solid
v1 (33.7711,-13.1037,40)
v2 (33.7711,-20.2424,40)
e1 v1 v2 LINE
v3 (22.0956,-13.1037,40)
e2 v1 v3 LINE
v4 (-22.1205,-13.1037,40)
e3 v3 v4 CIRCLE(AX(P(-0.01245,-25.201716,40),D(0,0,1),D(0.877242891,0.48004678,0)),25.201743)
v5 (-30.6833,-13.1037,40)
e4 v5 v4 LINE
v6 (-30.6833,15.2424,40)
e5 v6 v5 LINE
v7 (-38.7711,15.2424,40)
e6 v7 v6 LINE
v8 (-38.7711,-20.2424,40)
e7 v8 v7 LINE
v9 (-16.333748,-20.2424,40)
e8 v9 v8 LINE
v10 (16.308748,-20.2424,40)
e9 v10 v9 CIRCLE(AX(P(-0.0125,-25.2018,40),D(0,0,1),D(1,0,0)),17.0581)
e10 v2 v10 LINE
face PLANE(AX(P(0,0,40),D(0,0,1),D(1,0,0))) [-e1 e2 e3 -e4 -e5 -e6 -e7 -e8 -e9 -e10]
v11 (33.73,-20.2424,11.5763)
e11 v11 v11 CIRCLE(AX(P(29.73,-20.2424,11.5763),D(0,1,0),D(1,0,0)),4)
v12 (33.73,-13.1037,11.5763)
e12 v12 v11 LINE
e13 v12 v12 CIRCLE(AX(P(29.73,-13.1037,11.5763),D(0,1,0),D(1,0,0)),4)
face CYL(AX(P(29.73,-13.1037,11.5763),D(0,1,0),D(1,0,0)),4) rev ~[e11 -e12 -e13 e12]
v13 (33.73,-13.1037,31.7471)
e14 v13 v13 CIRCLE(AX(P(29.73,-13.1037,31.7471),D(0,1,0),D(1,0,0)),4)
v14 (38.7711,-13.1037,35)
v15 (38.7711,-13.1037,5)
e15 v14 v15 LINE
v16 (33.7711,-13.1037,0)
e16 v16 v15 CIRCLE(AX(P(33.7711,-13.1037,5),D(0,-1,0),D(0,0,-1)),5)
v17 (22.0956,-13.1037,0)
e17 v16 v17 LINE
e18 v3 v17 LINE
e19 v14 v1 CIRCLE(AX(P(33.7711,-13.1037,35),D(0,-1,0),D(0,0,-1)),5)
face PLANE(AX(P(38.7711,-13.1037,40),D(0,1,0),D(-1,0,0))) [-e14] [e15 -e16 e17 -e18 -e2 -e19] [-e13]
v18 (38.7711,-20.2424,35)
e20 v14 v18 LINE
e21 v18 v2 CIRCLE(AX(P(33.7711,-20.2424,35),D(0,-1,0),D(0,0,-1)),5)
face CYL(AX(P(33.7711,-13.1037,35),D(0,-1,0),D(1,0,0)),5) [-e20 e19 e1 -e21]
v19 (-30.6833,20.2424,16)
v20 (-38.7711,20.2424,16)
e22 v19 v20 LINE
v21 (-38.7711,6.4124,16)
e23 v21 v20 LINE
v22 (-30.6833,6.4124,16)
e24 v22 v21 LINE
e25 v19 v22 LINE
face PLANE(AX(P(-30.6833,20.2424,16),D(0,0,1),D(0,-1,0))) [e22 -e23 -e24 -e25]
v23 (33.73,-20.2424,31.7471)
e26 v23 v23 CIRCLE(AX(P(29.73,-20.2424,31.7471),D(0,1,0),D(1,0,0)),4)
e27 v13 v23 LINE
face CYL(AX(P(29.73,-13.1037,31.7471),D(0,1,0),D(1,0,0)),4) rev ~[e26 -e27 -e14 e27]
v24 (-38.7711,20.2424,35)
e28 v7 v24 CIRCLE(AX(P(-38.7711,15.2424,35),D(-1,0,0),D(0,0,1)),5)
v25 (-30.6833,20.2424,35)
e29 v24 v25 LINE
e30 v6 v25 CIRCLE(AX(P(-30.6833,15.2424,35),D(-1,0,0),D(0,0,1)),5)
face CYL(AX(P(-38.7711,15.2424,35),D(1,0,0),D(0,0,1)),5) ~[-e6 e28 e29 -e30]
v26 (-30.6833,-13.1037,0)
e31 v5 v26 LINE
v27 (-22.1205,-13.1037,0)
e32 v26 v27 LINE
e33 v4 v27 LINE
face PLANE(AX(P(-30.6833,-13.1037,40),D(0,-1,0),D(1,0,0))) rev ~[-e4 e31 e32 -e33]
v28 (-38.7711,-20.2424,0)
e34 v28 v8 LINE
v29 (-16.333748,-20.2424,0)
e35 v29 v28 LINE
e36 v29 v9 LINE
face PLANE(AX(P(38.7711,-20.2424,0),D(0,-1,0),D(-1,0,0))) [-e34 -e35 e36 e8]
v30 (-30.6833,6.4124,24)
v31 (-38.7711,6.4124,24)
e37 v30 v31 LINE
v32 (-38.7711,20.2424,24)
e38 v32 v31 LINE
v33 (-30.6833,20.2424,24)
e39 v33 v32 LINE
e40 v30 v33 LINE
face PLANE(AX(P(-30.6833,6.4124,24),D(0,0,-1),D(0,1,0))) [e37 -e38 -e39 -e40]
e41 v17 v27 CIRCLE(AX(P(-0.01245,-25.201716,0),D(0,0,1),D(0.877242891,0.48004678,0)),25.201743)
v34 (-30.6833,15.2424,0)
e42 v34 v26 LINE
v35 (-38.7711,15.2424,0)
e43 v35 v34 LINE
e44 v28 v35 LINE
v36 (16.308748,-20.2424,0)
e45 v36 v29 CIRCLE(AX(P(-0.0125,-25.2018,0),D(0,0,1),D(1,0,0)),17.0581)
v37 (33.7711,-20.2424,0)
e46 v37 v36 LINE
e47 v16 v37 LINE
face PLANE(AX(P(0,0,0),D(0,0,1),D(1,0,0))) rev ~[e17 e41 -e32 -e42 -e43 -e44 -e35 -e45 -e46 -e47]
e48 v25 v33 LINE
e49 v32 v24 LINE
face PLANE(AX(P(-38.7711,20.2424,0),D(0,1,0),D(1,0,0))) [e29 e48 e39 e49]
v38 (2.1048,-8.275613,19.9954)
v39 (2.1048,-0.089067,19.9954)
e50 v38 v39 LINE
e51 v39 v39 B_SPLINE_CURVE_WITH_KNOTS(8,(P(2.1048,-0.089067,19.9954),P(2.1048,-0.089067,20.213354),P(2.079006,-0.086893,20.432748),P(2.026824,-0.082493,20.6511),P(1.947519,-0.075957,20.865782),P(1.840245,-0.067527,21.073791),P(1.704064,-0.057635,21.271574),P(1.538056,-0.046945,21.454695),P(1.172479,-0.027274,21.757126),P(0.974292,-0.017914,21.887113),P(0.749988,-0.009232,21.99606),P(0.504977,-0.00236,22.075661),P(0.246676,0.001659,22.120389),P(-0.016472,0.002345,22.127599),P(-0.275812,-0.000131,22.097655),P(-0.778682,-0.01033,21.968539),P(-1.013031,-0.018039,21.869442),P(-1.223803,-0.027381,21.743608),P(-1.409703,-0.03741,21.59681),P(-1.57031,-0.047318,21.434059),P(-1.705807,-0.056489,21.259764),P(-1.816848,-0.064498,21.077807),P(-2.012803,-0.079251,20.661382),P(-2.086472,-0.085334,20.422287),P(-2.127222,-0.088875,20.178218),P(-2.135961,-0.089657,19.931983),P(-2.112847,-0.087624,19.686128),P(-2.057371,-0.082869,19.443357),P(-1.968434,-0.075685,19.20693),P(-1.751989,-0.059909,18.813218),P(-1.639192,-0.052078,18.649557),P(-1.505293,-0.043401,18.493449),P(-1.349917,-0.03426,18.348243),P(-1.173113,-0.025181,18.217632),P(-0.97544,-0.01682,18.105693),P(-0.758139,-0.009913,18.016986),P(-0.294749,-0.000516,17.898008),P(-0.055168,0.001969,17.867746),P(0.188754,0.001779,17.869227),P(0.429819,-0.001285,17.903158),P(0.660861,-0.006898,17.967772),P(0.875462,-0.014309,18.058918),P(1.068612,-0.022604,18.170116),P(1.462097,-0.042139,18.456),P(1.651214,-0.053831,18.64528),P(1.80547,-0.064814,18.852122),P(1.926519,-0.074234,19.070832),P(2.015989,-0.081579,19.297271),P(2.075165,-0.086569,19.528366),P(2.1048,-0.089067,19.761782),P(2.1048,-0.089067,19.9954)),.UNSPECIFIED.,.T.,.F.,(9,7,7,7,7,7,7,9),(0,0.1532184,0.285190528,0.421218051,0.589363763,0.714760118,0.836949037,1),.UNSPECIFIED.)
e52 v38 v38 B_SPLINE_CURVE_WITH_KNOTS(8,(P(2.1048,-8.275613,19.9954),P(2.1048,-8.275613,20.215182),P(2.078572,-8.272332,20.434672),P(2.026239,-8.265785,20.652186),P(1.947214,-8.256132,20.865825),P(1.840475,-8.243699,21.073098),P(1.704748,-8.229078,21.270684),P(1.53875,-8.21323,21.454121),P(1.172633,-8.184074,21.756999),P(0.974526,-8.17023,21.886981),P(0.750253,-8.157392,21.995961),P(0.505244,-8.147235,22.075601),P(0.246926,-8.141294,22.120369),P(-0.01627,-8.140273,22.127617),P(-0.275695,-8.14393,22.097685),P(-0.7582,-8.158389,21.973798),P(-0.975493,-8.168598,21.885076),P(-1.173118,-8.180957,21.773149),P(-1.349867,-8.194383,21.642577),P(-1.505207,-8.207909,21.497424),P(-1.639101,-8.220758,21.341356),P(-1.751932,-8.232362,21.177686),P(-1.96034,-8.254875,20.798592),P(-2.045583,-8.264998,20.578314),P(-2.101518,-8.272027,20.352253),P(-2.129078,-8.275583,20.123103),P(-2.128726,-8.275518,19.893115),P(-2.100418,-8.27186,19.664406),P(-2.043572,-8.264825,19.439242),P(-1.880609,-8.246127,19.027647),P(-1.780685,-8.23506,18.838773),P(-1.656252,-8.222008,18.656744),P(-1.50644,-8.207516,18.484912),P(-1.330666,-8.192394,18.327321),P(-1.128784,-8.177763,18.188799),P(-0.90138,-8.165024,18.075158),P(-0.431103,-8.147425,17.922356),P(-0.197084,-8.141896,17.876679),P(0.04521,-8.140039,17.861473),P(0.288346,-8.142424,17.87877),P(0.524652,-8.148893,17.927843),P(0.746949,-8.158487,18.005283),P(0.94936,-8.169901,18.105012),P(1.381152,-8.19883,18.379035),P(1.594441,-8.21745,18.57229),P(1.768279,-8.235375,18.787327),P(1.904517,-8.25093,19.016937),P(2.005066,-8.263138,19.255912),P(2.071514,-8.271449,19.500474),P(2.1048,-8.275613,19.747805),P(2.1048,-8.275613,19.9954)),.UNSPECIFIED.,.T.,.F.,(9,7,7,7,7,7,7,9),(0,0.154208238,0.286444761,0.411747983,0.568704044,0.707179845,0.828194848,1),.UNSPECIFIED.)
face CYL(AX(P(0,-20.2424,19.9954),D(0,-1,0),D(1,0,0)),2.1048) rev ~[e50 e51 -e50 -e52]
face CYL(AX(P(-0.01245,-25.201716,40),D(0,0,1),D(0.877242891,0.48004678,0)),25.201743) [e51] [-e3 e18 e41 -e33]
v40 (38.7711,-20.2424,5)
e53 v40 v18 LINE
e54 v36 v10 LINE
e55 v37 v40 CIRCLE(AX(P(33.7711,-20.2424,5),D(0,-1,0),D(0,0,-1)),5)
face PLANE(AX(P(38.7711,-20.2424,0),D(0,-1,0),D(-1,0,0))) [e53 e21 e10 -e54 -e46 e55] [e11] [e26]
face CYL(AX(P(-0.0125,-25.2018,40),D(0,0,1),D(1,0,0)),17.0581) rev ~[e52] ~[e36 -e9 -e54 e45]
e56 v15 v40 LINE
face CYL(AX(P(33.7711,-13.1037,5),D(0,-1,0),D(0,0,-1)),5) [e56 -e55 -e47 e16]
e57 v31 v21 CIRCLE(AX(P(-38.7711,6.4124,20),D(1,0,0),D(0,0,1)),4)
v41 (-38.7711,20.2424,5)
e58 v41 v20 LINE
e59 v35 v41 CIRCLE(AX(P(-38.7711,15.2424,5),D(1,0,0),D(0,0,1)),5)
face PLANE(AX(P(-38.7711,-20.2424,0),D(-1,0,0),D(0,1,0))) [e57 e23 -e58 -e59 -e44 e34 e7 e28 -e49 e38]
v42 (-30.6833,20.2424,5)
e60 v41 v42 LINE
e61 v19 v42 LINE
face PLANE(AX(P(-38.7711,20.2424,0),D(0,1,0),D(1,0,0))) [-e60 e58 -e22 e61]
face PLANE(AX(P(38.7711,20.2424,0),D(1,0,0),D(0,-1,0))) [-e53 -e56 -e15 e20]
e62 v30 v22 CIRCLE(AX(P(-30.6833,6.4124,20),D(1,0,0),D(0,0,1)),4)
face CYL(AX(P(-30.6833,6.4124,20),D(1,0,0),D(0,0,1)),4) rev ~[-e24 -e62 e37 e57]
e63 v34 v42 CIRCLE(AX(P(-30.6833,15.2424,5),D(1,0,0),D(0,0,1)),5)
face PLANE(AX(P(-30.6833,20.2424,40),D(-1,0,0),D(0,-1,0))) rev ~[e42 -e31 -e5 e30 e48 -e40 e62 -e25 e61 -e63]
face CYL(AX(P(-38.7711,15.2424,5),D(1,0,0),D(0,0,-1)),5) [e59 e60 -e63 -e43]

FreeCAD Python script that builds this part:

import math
import FreeCAD as App
import Part
import Sketcher
from FreeCAD import Vector


def edges_at(feature, points):
    """Names of the edges that pass closest to the given points."""
    edges = feature.Shape.Edges
    near = lambda p: min(range(len(edges)), key=lambda i: edges[i].distToShape(Part.Vertex(*p))[0])
    return sorted({f"Edge{near(p) + 1}" for p in points})


def add_polygon(sketch, points):
    """Adds a closed chain of lines whose ends are joined by coincident constraints."""
    first, n = sketch.GeometryCount, len(points)
    for a, b in zip(points, points[1:] + points[:1]):
        sketch.addGeometry(Part.LineSegment(App.Vector(*a, 0), App.Vector(*b, 0)), False)
    for i in range(n):
        sketch.addConstraint(Sketcher.Constraint("Coincident", first + i, 2, first + (i + 1) % n, 1))

doc = App.newDocument("Part")
params = doc.addObject("Spreadsheet::Sheet", "Params")
for row, (alias, value) in enumerate([
    ("pad1_length", "40 mm"),
    ("pocket1_length", "40 mm"),
    ("pocket2_length", "30.75 mm"),
    ("sketch4_diameter", "8 mm"),
    ("pocket3_length", "30.75 mm"),
    ("sketch5_radius", "4 mm"),
    ("sketch5_width", "13.83 mm"),
    ("pocket4_length", "30.75 mm"),
    ("fillet_radius", "5 mm"),
], start=1):
    params.set(f"A{row}", alias)
    params.set(f"B{row}", "=" + value)
    params.setAlias(f"B{row}", alias)

body = doc.addObject("PartDesign::Body", "Body")

# Sketch on XY plane
sketch1 = doc.addObject("Sketcher::SketchObject", "Sketch")
body.addObject(sketch1)
sketch1.AttachmentSupport = (doc.XY_Plane, [""])
sketch1.MapMode = "FlatFace"
add_polygon(sketch1, [(-39, -20), (39, -20), (39, 20), (-39, 20)])  # lines 0-3
sketch1.addConstraint(Sketcher.Constraint("Horizontal", 0))
sketch1.addConstraint(Sketcher.Constraint("Vertical", 1))
sketch1.addConstraint(Sketcher.Constraint("Horizontal", 2))
sketch1.addConstraint(Sketcher.Constraint("Vertical", 3))
sketch1.addConstraint(Sketcher.Constraint("Symmetric", 0, 2, 2, 2, -1, 1))
sketch1.addConstraint(Sketcher.Constraint("DistanceX", 0, 1, 0, 2, 77.5422))
sketch1.addConstraint(Sketcher.Constraint("DistanceY", 1, 1, 1, 2, 40.4848))
pad1 = doc.addObject("PartDesign::Pad", "Pad")
body.addObject(pad1)
pad1.Profile = sketch1
pad1.setExpression("Length", "Params.pad1_length")

# Sketch on XY plane
sketch2 = doc.addObject("Sketcher::SketchObject", "Sketch001")
body.addObject(sketch2)
sketch2.AttachmentSupport = (doc.XY_Plane, [""])
sketch2.MapMode = "FlatFace"
sketch2.AttachmentOffset = App.Placement(Vector(0, 0, 40), App.Rotation())
sketch2.addGeometry(Part.LineSegment(Vector(39, -13, 0), Vector(39, 20, 0)), False)
sketch2.addGeometry(Part.LineSegment(Vector(39, 20, 0), Vector(-31, 20, 0)), False)
sketch2.addGeometry(Part.LineSegment(Vector(-31, 20, 0), Vector(-31, -13, 0)), False)
sketch2.addGeometry(Part.LineSegment(Vector(-31, -13, 0), Vector(-22, -13, 0)), False)
sketch2.addGeometry(Part.ArcOfCircle(Part.Circle(Vector(0, -25, 0), Vector(0, 0, 1), 25), math.radians(29), math.radians(151)), False)
sketch2.addGeometry(Part.LineSegment(Vector(22, -13, 0), Vector(39, -13, 0)), False)
sketch2.addGeometry(Part.Circle(Vector(0, -25, 0), Vector(0, 0, 1), 17), False)
sketch2.addConstraint(Sketcher.Constraint("Coincident", 0, 2, 1, 1))
sketch2.addConstraint(Sketcher.Constraint("Coincident", 1, 2, 2, 1))
sketch2.addConstraint(Sketcher.Constraint("Coincident", 2, 2, 3, 1))
sketch2.addConstraint(Sketcher.Constraint("Coincident", 3, 2, 4, 2))
sketch2.addConstraint(Sketcher.Constraint("Coincident", 4, 1, 5, 1))
sketch2.addConstraint(Sketcher.Constraint("Coincident", 5, 2, 0, 1))
sketch2.addConstraint(Sketcher.Constraint("Vertical", 0))
sketch2.addConstraint(Sketcher.Constraint("Horizontal", 1))
sketch2.addConstraint(Sketcher.Constraint("Vertical", 2))
sketch2.addConstraint(Sketcher.Constraint("Horizontal", 3))
sketch2.addConstraint(Sketcher.Constraint("Horizontal", 5))
sketch2.addConstraint(Sketcher.Constraint("Coincident", 6, 3, 4, 3))
sketch2.addConstraint(Sketcher.Constraint("Horizontal", 3, 2, 4, 1))
sketch2.addConstraint(Sketcher.Constraint("Diameter", 6, 34.1162))
sketch2.addConstraint(Sketcher.Constraint("Radius", 4, 25.2018))
sketch2.addConstraint(Sketcher.Constraint("DistanceY", 0, 1, 0, 2, 33.346))
sketch2.addConstraint(Sketcher.Constraint("DistanceX", 1, 2, 1, 1, 69.4544))
sketch2.addConstraint(Sketcher.Constraint("DistanceX", 3, 1, 3, 2, 8.5628))
sketch2.addConstraint(Sketcher.Constraint("DistanceX", 5, 1, 5, 2, 16.6755))
sketch2.addConstraint(Sketcher.Constraint("DistanceX", -1, 1, 0, 2, 38.771))
sketch2.addConstraint(Sketcher.Constraint("DistanceY", 4, 3, -1, 1, 25.2018))
pocket1 = doc.addObject("PartDesign::Pocket", "Pocket")
body.addObject(pocket1)
pocket1.Profile = sketch2
pocket1.setExpression("Length", "Params.pocket1_length")

# Sketch on XZ plane
sketch3 = doc.addObject("Sketcher::SketchObject", "Sketch002")
body.addObject(sketch3)
sketch3.AttachmentSupport = (doc.XZ_Plane, [""])
sketch3.MapMode = "FlatFace"
sketch3.AttachmentOffset = App.Placement(Vector(0, 0, 20.2424), App.Rotation())
sketch3.addGeometry(Part.Circle(Vector(0, 20, 0), Vector(0, 0, 1), 2.1), False)
sketch3.addConstraint(Sketcher.Constraint("PointOnObject", 0, 3, -2))
sketch3.addConstraint(Sketcher.Constraint("Diameter", 0, 4.2096))
sketch3.addConstraint(Sketcher.Constraint("DistanceY", -1, 1, 0, 3, 19.9954))
pocket2 = doc.addObject("PartDesign::Pocket", "Pocket001")
body.addObject(pocket2)
pocket2.Profile = sketch3
pocket2.setExpression("Length", "Params.pocket2_length")

# Sketch on XZ plane
sketch4 = doc.addObject("Sketcher::SketchObject", "Sketch003")
body.addObject(sketch4)
sketch4.AttachmentSupport = (doc.XZ_Plane, [""])
sketch4.MapMode = "FlatFace"
sketch4.AttachmentOffset = App.Placement(Vector(0, 0, 13.1037), App.Rotation())
sketch4.addGeometry(Part.Circle(Vector(29.7, 11.6, 0), Vector(0, 0, 1), 4), False)
sketch4.addGeometry(Part.Circle(Vector(29.7, 31.7, 0), Vector(0, 0, 1), 4), False)
sketch4.addConstraint(Sketcher.Constraint("Equal", 0, 1))
sketch4.addConstraint(Sketcher.Constraint("Vertical", 0, 3, 1, 3))
sketch4.addConstraint(Sketcher.Constraint("Diameter", 0, 8.0))
sketch4.addConstraint(Sketcher.Constraint("DistanceX", -1, 1, 0, 3, 29.73))
sketch4.addConstraint(Sketcher.Constraint("DistanceY", -1, 1, 1, 3, 31.747))
sketch4.addConstraint(Sketcher.Constraint("DistanceY", -1, 1, 0, 3, 11.5763))
sketch4.setExpression("Constraints[2]", "Params.sketch4_diameter")
pocket3 = doc.addObject("PartDesign::Pocket", "Pocket002")
body.addObject(pocket3)
pocket3.Profile = sketch4
pocket3.setExpression("Length", "Params.pocket3_length")
pocket3.Reversed = True

# Sketch on YZ plane
sketch5 = doc.addObject("Sketcher::SketchObject", "Sketch004")
body.addObject(sketch5)
sketch5.AttachmentSupport = (doc.YZ_Plane, [""])
sketch5.MapMode = "FlatFace"
sketch5.AttachmentOffset = App.Placement(Vector(0, 0, -30.6833), App.Rotation())
sketch5.addGeometry(Part.LineSegment(Vector(20.2, 16, 0), Vector(20.2, 24, 0)), False)
sketch5.addGeometry(Part.LineSegment(Vector(20.2, 24, 0), Vector(6.4, 24, 0)), False)
sketch5.addGeometry(Part.ArcOfCircle(Part.Circle(Vector(6.4, 20, 0), Vector(0, 0, 1), 4), math.radians(90), math.radians(270)), False)
sketch5.addGeometry(Part.LineSegment(Vector(6.4, 16, 0), Vector(20.2, 16, 0)), False)
sketch5.addConstraint(Sketcher.Constraint("Coincident", 0, 2, 1, 1))
sketch5.addConstraint(Sketcher.Constraint("Tangent", 1, 2, 2, 1))
sketch5.addConstraint(Sketcher.Constraint("Tangent", 2, 2, 3, 1))
sketch5.addConstraint(Sketcher.Constraint("Coincident", 3, 2, 0, 1))
sketch5.addConstraint(Sketcher.Constraint("Vertical", 0))
sketch5.addConstraint(Sketcher.Constraint("Horizontal", 1))
sketch5.addConstraint(Sketcher.Constraint("Horizontal", 3))
sketch5.addConstraint(Sketcher.Constraint("DistanceY", -1, 1, 2, 2, 16.0))
sketch5.addConstraint(Sketcher.Constraint("Radius", 2, 4.0))
sketch5.addConstraint(Sketcher.Constraint("DistanceX", 1, 2, 1, 1, 13.83))
sketch5.addConstraint(Sketcher.Constraint("DistanceX", -1, 1, 2, 3, 6.4124))
sketch5.setExpression("Constraints[8]", "Params.sketch5_radius")
sketch5.setExpression("Constraints[9]", "Params.sketch5_width")
pocket4 = doc.addObject("PartDesign::Pocket", "Pocket003")
body.addObject(pocket4)
pocket4.Profile = sketch5
pocket4.setExpression("Length", "Params.pocket4_length")
doc.recompute()

fillet = doc.addObject("PartDesign::Fillet", "Fillet")
body.addObject(fillet)
fillet.Base = (pocket4, edges_at(pocket4, [
    (-34.727, 20.242, 40),
    (-34.727, 20.242, 0),
    (38.771, -16.673, 40),
    (38.771, -16.673, 0),
]))
fillet.setExpression("Radius", "Params.fillet_radius")

doc.recompute()
